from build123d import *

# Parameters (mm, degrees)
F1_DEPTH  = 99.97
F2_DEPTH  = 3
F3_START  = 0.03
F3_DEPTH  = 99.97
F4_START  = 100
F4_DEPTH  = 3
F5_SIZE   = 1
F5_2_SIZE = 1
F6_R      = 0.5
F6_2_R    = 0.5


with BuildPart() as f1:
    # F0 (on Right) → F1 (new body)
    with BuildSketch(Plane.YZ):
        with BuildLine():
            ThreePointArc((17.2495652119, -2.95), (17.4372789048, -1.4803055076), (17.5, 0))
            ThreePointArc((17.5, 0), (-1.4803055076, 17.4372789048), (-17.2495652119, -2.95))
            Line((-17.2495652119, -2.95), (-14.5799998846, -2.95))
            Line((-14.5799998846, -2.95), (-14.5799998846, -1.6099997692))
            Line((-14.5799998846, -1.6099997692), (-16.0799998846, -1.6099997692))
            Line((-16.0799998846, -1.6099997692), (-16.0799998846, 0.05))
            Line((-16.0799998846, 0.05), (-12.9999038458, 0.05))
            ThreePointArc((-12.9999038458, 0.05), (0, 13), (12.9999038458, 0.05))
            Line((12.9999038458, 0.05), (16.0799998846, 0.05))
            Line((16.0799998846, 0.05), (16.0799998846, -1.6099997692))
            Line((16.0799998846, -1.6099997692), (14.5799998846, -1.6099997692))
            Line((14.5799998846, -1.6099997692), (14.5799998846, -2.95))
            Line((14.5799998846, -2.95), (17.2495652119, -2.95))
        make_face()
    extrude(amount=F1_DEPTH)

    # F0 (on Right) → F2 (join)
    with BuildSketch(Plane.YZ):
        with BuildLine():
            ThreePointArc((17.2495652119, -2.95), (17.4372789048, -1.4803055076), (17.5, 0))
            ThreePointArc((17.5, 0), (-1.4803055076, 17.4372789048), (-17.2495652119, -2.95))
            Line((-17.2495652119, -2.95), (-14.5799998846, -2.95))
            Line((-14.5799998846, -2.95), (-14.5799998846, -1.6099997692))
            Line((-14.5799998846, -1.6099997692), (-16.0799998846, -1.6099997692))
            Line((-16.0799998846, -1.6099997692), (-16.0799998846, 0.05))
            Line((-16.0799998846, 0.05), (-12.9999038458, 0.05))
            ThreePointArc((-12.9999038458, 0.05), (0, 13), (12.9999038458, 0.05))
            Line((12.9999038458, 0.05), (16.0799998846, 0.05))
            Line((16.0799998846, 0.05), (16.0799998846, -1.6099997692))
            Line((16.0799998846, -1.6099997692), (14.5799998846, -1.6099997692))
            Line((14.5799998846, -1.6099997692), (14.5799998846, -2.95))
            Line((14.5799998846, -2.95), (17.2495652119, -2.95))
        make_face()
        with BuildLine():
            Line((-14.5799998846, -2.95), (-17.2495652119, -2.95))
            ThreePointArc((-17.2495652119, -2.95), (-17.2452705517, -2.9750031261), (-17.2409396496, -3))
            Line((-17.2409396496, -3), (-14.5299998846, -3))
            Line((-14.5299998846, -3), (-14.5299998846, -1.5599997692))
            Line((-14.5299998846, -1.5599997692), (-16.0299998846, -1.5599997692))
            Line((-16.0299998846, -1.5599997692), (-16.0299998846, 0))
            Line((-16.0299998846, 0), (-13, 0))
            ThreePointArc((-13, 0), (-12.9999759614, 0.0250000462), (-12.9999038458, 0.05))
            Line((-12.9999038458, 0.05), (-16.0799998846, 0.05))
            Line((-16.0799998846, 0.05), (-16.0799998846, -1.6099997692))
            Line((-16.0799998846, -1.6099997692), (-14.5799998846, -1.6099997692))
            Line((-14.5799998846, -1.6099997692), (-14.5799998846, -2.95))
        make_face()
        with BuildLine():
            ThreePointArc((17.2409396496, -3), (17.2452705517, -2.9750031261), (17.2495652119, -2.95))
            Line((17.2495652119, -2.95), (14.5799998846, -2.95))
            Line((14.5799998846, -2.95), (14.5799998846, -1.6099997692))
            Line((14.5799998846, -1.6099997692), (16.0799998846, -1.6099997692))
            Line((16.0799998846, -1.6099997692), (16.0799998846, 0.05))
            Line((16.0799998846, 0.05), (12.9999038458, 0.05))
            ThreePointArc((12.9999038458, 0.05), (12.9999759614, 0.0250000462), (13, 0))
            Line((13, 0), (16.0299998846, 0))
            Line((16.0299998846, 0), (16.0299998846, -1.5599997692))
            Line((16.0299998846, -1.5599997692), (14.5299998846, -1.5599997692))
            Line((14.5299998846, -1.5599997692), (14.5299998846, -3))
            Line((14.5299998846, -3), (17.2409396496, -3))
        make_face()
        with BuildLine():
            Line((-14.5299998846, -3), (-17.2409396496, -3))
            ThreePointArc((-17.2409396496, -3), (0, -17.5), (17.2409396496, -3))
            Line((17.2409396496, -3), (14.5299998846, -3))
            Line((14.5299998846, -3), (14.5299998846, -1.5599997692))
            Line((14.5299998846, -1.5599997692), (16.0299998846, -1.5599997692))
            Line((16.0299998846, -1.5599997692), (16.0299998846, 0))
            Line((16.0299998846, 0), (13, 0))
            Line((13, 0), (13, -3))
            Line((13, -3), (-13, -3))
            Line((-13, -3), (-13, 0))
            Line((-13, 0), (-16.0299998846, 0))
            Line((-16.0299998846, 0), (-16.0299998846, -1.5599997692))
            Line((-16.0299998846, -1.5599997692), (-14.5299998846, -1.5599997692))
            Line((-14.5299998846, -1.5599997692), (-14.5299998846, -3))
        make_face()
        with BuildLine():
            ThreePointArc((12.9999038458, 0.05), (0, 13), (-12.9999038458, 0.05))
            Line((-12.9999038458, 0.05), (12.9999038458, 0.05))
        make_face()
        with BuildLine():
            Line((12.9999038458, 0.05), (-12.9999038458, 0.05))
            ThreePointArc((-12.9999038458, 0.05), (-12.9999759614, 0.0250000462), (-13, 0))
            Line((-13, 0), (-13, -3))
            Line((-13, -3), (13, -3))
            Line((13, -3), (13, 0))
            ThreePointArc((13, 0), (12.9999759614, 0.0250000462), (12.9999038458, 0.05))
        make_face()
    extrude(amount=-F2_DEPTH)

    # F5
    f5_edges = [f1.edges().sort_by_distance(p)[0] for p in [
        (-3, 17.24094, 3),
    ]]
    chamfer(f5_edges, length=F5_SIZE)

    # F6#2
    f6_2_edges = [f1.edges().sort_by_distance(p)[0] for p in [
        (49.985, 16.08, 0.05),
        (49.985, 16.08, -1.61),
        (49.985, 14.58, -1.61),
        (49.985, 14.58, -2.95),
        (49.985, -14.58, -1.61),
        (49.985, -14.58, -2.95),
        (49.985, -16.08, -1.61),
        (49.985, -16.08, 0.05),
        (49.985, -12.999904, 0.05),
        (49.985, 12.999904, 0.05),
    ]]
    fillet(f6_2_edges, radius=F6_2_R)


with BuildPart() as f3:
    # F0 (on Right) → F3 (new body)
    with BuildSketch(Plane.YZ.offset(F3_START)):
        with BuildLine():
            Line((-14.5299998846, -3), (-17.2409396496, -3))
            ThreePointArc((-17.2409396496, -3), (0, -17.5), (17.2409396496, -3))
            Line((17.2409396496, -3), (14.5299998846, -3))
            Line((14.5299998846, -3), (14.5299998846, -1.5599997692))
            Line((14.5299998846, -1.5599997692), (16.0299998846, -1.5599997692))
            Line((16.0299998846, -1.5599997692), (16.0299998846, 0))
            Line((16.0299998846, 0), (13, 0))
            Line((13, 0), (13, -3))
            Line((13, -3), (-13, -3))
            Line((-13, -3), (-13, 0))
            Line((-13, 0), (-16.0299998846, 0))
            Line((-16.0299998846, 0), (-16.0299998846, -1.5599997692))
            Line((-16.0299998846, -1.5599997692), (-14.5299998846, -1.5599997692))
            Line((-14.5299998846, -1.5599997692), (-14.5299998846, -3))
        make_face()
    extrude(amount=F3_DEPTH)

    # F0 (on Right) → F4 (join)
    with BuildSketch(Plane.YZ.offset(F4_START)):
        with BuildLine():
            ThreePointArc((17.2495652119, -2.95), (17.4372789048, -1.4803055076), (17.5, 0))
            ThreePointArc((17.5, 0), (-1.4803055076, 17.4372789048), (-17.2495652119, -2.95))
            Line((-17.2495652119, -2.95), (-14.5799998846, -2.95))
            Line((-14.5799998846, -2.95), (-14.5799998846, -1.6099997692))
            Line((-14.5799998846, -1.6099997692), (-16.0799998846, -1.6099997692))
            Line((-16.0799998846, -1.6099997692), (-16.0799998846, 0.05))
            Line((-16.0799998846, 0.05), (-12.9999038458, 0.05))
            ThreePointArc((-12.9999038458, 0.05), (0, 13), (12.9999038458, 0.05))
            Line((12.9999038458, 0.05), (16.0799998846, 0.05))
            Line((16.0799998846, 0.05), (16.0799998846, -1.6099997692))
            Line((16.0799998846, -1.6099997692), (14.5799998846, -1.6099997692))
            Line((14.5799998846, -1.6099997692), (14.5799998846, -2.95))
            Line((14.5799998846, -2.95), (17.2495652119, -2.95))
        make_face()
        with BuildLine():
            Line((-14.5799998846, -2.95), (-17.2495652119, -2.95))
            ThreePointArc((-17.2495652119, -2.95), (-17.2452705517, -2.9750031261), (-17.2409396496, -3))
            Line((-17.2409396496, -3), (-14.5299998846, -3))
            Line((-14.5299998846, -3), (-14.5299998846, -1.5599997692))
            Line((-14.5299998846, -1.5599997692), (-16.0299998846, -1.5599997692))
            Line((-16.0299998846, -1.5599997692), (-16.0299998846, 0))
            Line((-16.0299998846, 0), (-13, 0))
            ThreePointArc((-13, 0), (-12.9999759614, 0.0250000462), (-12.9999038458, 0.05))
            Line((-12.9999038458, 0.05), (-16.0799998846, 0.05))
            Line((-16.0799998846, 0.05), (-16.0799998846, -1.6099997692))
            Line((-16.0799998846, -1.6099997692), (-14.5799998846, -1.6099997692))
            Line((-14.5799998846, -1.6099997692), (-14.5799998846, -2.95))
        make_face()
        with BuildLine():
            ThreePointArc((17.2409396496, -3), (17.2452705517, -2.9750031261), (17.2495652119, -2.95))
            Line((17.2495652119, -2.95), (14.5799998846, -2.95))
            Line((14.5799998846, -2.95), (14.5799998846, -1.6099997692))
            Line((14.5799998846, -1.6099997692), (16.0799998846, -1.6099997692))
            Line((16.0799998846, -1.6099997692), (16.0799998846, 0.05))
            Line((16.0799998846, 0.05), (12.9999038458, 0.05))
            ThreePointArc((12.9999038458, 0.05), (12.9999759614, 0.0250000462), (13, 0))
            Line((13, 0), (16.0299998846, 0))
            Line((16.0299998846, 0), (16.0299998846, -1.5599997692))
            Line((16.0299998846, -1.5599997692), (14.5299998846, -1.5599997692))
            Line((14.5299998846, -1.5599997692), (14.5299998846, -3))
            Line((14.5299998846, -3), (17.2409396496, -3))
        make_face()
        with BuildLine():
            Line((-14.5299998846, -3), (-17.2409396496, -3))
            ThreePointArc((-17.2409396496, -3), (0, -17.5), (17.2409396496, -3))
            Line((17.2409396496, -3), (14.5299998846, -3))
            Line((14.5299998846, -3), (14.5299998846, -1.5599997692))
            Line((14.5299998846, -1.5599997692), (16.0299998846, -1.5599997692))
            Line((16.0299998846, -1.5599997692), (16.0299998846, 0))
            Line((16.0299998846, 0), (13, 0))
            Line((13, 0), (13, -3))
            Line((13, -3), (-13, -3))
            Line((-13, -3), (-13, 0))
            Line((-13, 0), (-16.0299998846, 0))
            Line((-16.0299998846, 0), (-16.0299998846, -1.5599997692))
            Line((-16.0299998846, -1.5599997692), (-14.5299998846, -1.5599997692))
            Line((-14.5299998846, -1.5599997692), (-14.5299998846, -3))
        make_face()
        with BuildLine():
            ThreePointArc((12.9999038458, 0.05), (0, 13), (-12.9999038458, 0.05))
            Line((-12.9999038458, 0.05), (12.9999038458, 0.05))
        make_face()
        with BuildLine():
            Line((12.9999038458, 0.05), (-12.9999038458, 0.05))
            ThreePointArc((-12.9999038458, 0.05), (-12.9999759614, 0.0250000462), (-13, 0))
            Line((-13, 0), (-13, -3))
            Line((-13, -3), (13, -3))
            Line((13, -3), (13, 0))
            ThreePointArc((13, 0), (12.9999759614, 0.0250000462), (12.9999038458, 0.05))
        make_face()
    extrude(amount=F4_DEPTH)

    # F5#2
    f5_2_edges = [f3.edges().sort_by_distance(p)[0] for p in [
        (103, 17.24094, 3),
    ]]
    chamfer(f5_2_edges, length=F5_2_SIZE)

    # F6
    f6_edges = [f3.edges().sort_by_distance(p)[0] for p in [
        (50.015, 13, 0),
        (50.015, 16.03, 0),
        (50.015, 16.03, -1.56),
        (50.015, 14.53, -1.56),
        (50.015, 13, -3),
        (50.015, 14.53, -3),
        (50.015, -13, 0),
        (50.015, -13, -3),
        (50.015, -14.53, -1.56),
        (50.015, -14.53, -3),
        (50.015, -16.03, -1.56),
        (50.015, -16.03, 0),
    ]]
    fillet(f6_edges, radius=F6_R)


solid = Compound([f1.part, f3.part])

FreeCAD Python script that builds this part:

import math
import FreeCAD as App
import Part
import Sketcher

V = App.Vector


def edges_at(feature, points):
    """Names of the edges that pass closest to the given points."""
    edges = feature.Shape.Edges
    near = lambda p: min(range(len(edges)), key=lambda i: edges[i].distToShape(Part.Vertex(*p))[0])
    return sorted({f"Edge{near(p) + 1}" for p in points})

doc = App.newDocument("Part")
body = doc.addObject("PartDesign::Body", "Body")

# Sketch on YZ plane
sketch1 = body.newObject("Sketcher::SketchObject", "Sketch")
sketch1.AttachmentSupport = (doc.getObject("YZ_Plane"), [""])
sketch1.MapMode = "FlatFace"
sketch1.addGeometry([
    Part.ArcOfCircle(Part.Circle(V(0, 0, 0), V(0, 0, 1), 17.5), math.radians(-9.704769), math.radians(0)),  # 0
    Part.ArcOfCircle(Part.Circle(V(0, 0, 0), V(0, 0, 1), 17.5), math.radians(0), math.radians(189.704769)),  # 1
    Part.LineSegment(V(-17.249565, -2.95, 0), V(-14.58, -2.95, 0)),  # 2
    Part.LineSegment(V(-14.58, -2.95, 0), V(-14.58, -1.61, 0)),  # 3
    Part.LineSegment(V(-14.58, -1.61, 0), V(-16.08, -1.61, 0)),  # 4
    Part.LineSegment(V(-16.08, -1.61, 0), V(-16.08, 0.05, 0)),  # 5
    Part.LineSegment(V(-16.08, 0.05, 0), V(-12.999904, 0.05, 0)),  # 6
    Part.ArcOfCircle(Part.Circle(V(0, 0, 0), V(0, 0, 1), 13), math.radians(0.220369), math.radians(179.779631)),  # 7
    Part.LineSegment(V(12.999904, 0.05, 0), V(16.08, 0.05, 0)),  # 8
    Part.LineSegment(V(16.08, 0.05, 0), V(16.08, -1.61, 0)),  # 9
    Part.LineSegment(V(16.08, -1.61, 0), V(14.58, -1.61, 0)),  # 10
    Part.LineSegment(V(14.58, -1.61, 0), V(14.58, -2.95, 0)),  # 11
    Part.LineSegment(V(14.58, -2.95, 0), V(17.249565, -2.95, 0)),  # 12
], False)
sketch1.addConstraint([
    Sketcher.Constraint("Tangent", 0, 2, 1, 1),
    Sketcher.Constraint("Coincident", 1, 2, 2, 1),
    Sketcher.Constraint("Coincident", 2, 2, 3, 1),
    Sketcher.Constraint("Coincident", 3, 2, 4, 1),
    Sketcher.Constraint("Coincident", 4, 2, 5, 1),
    Sketcher.Constraint("Coincident", 5, 2, 6, 1),
    Sketcher.Constraint("Coincident", 6, 2, 7, 2),
    Sketcher.Constraint("Coincident", 7, 1, 8, 1),
    Sketcher.Constraint("Coincident", 8, 2, 9, 1),
    Sketcher.Constraint("Coincident", 9, 2, 10, 1),
    Sketcher.Constraint("Coincident", 10, 2, 11, 1),
    Sketcher.Constraint("Coincident", 11, 2, 12, 1),
    Sketcher.Constraint("Coincident", 12, 2, 0, 1),
    Sketcher.Constraint("Horizontal", 2),
    Sketcher.Constraint("Vertical", 3),
    Sketcher.Constraint("Horizontal", 4),
    Sketcher.Constraint("Vertical", 5),
    Sketcher.Constraint("Horizontal", 6),
    Sketcher.Constraint("Horizontal", 8),
    Sketcher.Constraint("Vertical", 9),
    Sketcher.Constraint("Horizontal", 10),
    Sketcher.Constraint("Vertical", 11),
    Sketcher.Constraint("Horizontal", 12),
    Sketcher.Constraint("Coincident", 0, 3, -1, 1),
    Sketcher.Constraint("Coincident", 7, 3, -1, 1),
    Sketcher.Constraint("Equal", 0, 1),
    Sketcher.Constraint("Symmetric", 5, 2, 8, 2, -2),
    Sketcher.Constraint("Symmetric", 3, 2, 10, 2, -2),
    Sketcher.Constraint("PointOnObject", 0, 2, -1),
    Sketcher.Constraint("Horizontal", 2, 2, 11, 2),
    Sketcher.Constraint("Radius", 7, 13.0),
    Sketcher.Constraint("Radius", 0, 17.5),
    Sketcher.Constraint("DistanceX", 4, 2, 4, 1, 1.5),
    Sketcher.Constraint("DistanceY", 1, 2, 5, 2, 3.0),
    Sketcher.Constraint("DistanceY", 3, 1, 3, 2, 1.34),
    Sketcher.Constraint("DistanceY", 1, 2, -1, 1, 2.95),
    Sketcher.Constraint("DistanceX", 2, 2, -1, 1, 14.58),
])
pad1 = body.newObject("PartDesign::Pad", "Pad")
pad1.Profile = sketch1
pad1.Length = 99.97

# Sketch on YZ plane
sketch2 = body.newObject("Sketcher::SketchObject", "Sketch001")
sketch2.AttachmentSupport = (doc.getObject("YZ_Plane"), [""])
sketch2.MapMode = "FlatFace"
sketch2.addGeometry([
    Part.ArcOfCircle(Part.Circle(V(0, 0, 0), V(0, 0, 1), 17.5), math.radians(-9.704769), math.radians(0)),  # 0
    Part.ArcOfCircle(Part.Circle(V(0, 0, 0), V(0, 0, 1), 17.5), math.radians(0), math.radians(189.704769)),  # 1
    Part.ArcOfCircle(Part.Circle(V(-0.000034, -0.000006, 0), V(0, 0, 1), 17.499966), math.radians(-170.295231), math.radians(-170.12911)),  # 2
    Part.ArcOfCircle(Part.Circle(V(0, 0, 0), V(0, 0, 1), 17.5), math.radians(-170.12911), math.radians(-9.87089)),  # 3
    Part.ArcOfCircle(Part.Circle(V(0.000034, -0.000006, 0), V(0, 0, 1), 17.499966), math.radians(-9.87089), math.radians(-9.704769)),  # 4
], False)
sketch2.addConstraint([
    Sketcher.Constraint("Tangent", 0, 2, 1, 1),
    Sketcher.Constraint("Tangent", 1, 2, 2, 1),
    Sketcher.Constraint("Tangent", 2, 2, 3, 1),
    Sketcher.Constraint("Tangent", 3, 2, 4, 1),
    Sketcher.Constraint("Tangent", 4, 2, 0, 1),
    Sketcher.Constraint("Coincident", 0, 3, -1, 1),
    Sketcher.Constraint("Equal", 0, 1),
    Sketcher.Constraint("Equal", 2, 4),
    Sketcher.Constraint("PointOnObject", 0, 2, -1),
    Sketcher.Constraint("Horizontal", 2, 2, 3, 2),
    Sketcher.Constraint("Radius", 0, 17.5),
    Sketcher.Constraint("DistanceY", 2, 2, -1, 1, 3.0),
    Sketcher.Constraint("DistanceY", 1, 2, -1, 1, 2.95),
    Sketcher.Constraint("Radius", 2, 17.499966),
])
pad2 = body.newObject("PartDesign::Pad", "Pad001")
pad2.Profile = sketch2
pad2.Length = 3
pad2.Reversed = True
doc.recompute()

chamfer = body.newObject("PartDesign::Chamfer", "Chamfer")
chamfer.Base = (pad2, edges_at(pad2, [(-3, -1.48, 17.437)]))
chamfer.Size = 1
doc.recompute()

fillet = body.newObject("PartDesign::Fillet", "Fillet")
fillet.Base = (chamfer, edges_at(chamfer, [
    (49.985, 16.08, 0.05),
    (49.985, 16.08, -1.61),
    (49.985, 14.58, -1.61),
    (49.985, 14.58, -2.95),
    (49.985, -14.58, -1.61),
    (49.985, -14.58, -2.95),
    (49.985, -16.08, -1.61),
    (49.985, -16.08, 0.05),
    (49.985, -13, 0.05),
    (49.985, 13, 0.05),
]))
fillet.Radius = 0.5
body2 = doc.addObject("PartDesign::Body", "Body001")

# Sketch on YZ plane
sketch3 = body2.newObject("Sketcher::SketchObject", "Sketch002")
sketch3.AttachmentSupport = (doc.getObject("YZ_Plane001"), [""])
sketch3.MapMode = "FlatFace"
sketch3.AttachmentOffset = App.Placement(V(0, 0, 0.03), App.Rotation())
sketch3.addGeometry([
    Part.LineSegment(V(-14.53, -3, 0), V(-17.24094, -3, 0)),  # 0
    Part.ArcOfCircle(Part.Circle(V(0, 0, 0), V(0, 0, 1), 17.5), math.radians(-170.12911), math.radians(-9.87089)),  # 1
    Part.LineSegment(V(17.24094, -3, 0), V(14.53, -3, 0)),  # 2
    Part.LineSegment(V(14.53, -3, 0), V(14.53, -1.56, 0)),  # 3
    Part.LineSegment(V(14.53, -1.56, 0), V(16.03, -1.56, 0)),  # 4
    Part.LineSegment(V(16.03, -1.56, 0), V(16.03, 0, 0)),  # 5
    Part.LineSegment(V(16.03, 0, 0), V(13, 0, 0)),  # 6
    Part.LineSegment(V(13, 0, 0), V(13, -3, 0)),  # 7
    Part.LineSegment(V(13, -3, 0), V(-13, -3, 0)),  # 8
    Part.LineSegment(V(-13, -3, 0), V(-13, 0, 0)),  # 9
    Part.LineSegment(V(-13, 0, 0), V(-16.03, 0, 0)),  # 10
    Part.LineSegment(V(-16.03, 0, 0), V(-16.03, -1.56, 0)),  # 11
    Part.LineSegment(V(-16.03, -1.56, 0), V(-14.53, -1.56, 0)),  # 12
    Part.LineSegment(V(-14.53, -1.56, 0), V(-14.53, -3, 0)),  # 13
], False)
sketch3.addConstraint([
    Sketcher.Constraint("Coincident", 0, 2, 1, 1),
    Sketcher.Constraint("Coincident", 1, 2, 2, 1),
    Sketcher.Constraint("Coincident", 2, 2, 3, 1),
    Sketcher.Constraint("Coincident", 3, 2, 4, 1),
    Sketcher.Constraint("Coincident", 4, 2, 5, 1),
    Sketcher.Constraint("Coincident", 5, 2, 6, 1),
    Sketcher.Constraint("Coincident", 6, 2, 7, 1),
    Sketcher.Constraint("Coincident", 7, 2, 8, 1),
    Sketcher.Constraint("Coincident", 8, 2, 9, 1),
    Sketcher.Constraint("Coincident", 9, 2, 10, 1),
    Sketcher.Constraint("Coincident", 10, 2, 11, 1),
    Sketcher.Constraint("Coincident", 11, 2, 12, 1),
    Sketcher.Constraint("Coincident", 12, 2, 13, 1),
    Sketcher.Constraint("Coincident", 13, 2, 0, 1),
    Sketcher.Constraint("Horizontal", 0),
    Sketcher.Constraint("Horizontal", 2),
    Sketcher.Constraint("Vertical", 3),
    Sketcher.Constraint("Horizontal", 4),
    Sketcher.Constraint("Vertical", 5),
    Sketcher.Constraint("Horizontal", 6),
    Sketcher.Constraint("Vertical", 7),
    Sketcher.Constraint("Horizontal", 8),
    Sketcher.Constraint("Vertical", 9),
    Sketcher.Constraint("Horizontal", 10),
    Sketcher.Constraint("Vertical", 11),
    Sketcher.Constraint("Horizontal", 12),
    Sketcher.Constraint("Vertical", 13),
    Sketcher.Constraint("Coincident", 1, 3, -1, 1),
    Sketcher.Constraint("Symmetric", 6, 2, 9, 2, -1, 1),
    Sketcher.Constraint("Symmetric", 5, 2, 10, 2, -2),
    Sketcher.Constraint("Symmetric", 3, 2, 12, 2, -2),
    Sketcher.Constraint("Horizontal", 0, 2, 1, 2),
    Sketcher.Constraint("Horizontal", 2, 2, 7, 2),
    Sketcher.Constraint("Radius", 1, 17.5),
    Sketcher.Constraint("DistanceX", 8, 2, 8, 1, 26.0),
    Sketcher.Constraint("DistanceY", 7, 2, 7, 1, 3.0),
    Sketcher.Constraint("DistanceX", 4, 1, 4, 2, 1.5),
    Sketcher.Constraint("DistanceX", 6, 2, 6, 1, 3.03),
    Sketcher.Constraint("DistanceY", 3, 1, 3, 2, 1.44),
])
pad3 = body2.newObject("PartDesign::Pad", "Pad002")
pad3.Profile = sketch3
pad3.Length = 99.97

# Sketch on YZ plane
sketch4 = body2.newObject("Sketcher::SketchObject", "Sketch003")
sketch4.AttachmentSupport = (doc.getObject("YZ_Plane001"), [""])
sketch4.MapMode = "FlatFace"
sketch4.AttachmentOffset = App.Placement(V(0, 0, 100), App.Rotation())
sketch4.addGeometry([
    Part.ArcOfCircle(Part.Circle(V(0, 0, 0), V(0, 0, 1), 17.5), math.radians(-9.704769), math.radians(0)),  # 0
    Part.ArcOfCircle(Part.Circle(V(0, 0, 0), V(0, 0, 1), 17.5), math.radians(0), math.radians(189.704769)),  # 1
    Part.ArcOfCircle(Part.Circle(V(-0.000034, -0.000006, 0), V(0, 0, 1), 17.499966), math.radians(-170.295231), math.radians(-170.12911)),  # 2
    Part.ArcOfCircle(Part.Circle(V(0, 0, 0), V(0, 0, 1), 17.5), math.radians(-170.12911), math.radians(-9.87089)),  # 3
    Part.ArcOfCircle(Part.Circle(V(0.000034, -0.000006, 0), V(0, 0, 1), 17.499966), math.radians(-9.87089), math.radians(-9.704769)),  # 4
], False)
sketch4.addConstraint([
    Sketcher.Constraint("Tangent", 0, 2, 1, 1),
    Sketcher.Constraint("Tangent", 1, 2, 2, 1),
    Sketcher.Constraint("Tangent", 2, 2, 3, 1),
    Sketcher.Constraint("Tangent", 3, 2, 4, 1),
    Sketcher.Constraint("Tangent", 4, 2, 0, 1),
    Sketcher.Constraint("Coincident", 0, 3, -1, 1),
    Sketcher.Constraint("Equal", 0, 1),
    Sketcher.Constraint("Equal", 2, 4),
    Sketcher.Constraint("PointOnObject", 0, 2, -1),
    Sketcher.Constraint("Horizontal", 2, 2, 3, 2),
    Sketcher.Constraint("Radius", 0, 17.5),
    Sketcher.Constraint("DistanceY", 2, 2, -1, 1, 3.0),
    Sketcher.Constraint("DistanceY", 1, 2, -1, 1, 2.95),
    Sketcher.Constraint("Radius", 2, 17.499966),
])
pad4 = body2.newObject("PartDesign::Pad", "Pad003")
pad4.Profile = sketch4
pad4.Length = 3
doc.recompute()

chamfer2 = body2.newObject("PartDesign::Chamfer", "Chamfer001")
chamfer2.Base = (pad4, edges_at(pad4, [(103, -1.48, 17.437)]))
chamfer2.Size = 1
doc.recompute()

fillet2 = body2.newObject("PartDesign::Fillet", "Fillet001")
fillet2.Base = (chamfer2, edges_at(chamfer2, [
    (50.015, 13, 0),
    (50.015, 16.03, 0),
    (50.015, 16.03, -1.56),
    (50.015, 14.53, -1.56),
    (50.015, 13, -3),
    (50.015, 14.53, -3),
    (50.015, -13, 0),
    (50.015, -13, -3),
    (50.015, -14.53, -1.56),
    (50.015, -14.53, -3),
    (50.015, -16.03, -1.56),
    (50.015, -16.03, 0),
]))
fillet2.Radius = 0.5

doc.recompute()
